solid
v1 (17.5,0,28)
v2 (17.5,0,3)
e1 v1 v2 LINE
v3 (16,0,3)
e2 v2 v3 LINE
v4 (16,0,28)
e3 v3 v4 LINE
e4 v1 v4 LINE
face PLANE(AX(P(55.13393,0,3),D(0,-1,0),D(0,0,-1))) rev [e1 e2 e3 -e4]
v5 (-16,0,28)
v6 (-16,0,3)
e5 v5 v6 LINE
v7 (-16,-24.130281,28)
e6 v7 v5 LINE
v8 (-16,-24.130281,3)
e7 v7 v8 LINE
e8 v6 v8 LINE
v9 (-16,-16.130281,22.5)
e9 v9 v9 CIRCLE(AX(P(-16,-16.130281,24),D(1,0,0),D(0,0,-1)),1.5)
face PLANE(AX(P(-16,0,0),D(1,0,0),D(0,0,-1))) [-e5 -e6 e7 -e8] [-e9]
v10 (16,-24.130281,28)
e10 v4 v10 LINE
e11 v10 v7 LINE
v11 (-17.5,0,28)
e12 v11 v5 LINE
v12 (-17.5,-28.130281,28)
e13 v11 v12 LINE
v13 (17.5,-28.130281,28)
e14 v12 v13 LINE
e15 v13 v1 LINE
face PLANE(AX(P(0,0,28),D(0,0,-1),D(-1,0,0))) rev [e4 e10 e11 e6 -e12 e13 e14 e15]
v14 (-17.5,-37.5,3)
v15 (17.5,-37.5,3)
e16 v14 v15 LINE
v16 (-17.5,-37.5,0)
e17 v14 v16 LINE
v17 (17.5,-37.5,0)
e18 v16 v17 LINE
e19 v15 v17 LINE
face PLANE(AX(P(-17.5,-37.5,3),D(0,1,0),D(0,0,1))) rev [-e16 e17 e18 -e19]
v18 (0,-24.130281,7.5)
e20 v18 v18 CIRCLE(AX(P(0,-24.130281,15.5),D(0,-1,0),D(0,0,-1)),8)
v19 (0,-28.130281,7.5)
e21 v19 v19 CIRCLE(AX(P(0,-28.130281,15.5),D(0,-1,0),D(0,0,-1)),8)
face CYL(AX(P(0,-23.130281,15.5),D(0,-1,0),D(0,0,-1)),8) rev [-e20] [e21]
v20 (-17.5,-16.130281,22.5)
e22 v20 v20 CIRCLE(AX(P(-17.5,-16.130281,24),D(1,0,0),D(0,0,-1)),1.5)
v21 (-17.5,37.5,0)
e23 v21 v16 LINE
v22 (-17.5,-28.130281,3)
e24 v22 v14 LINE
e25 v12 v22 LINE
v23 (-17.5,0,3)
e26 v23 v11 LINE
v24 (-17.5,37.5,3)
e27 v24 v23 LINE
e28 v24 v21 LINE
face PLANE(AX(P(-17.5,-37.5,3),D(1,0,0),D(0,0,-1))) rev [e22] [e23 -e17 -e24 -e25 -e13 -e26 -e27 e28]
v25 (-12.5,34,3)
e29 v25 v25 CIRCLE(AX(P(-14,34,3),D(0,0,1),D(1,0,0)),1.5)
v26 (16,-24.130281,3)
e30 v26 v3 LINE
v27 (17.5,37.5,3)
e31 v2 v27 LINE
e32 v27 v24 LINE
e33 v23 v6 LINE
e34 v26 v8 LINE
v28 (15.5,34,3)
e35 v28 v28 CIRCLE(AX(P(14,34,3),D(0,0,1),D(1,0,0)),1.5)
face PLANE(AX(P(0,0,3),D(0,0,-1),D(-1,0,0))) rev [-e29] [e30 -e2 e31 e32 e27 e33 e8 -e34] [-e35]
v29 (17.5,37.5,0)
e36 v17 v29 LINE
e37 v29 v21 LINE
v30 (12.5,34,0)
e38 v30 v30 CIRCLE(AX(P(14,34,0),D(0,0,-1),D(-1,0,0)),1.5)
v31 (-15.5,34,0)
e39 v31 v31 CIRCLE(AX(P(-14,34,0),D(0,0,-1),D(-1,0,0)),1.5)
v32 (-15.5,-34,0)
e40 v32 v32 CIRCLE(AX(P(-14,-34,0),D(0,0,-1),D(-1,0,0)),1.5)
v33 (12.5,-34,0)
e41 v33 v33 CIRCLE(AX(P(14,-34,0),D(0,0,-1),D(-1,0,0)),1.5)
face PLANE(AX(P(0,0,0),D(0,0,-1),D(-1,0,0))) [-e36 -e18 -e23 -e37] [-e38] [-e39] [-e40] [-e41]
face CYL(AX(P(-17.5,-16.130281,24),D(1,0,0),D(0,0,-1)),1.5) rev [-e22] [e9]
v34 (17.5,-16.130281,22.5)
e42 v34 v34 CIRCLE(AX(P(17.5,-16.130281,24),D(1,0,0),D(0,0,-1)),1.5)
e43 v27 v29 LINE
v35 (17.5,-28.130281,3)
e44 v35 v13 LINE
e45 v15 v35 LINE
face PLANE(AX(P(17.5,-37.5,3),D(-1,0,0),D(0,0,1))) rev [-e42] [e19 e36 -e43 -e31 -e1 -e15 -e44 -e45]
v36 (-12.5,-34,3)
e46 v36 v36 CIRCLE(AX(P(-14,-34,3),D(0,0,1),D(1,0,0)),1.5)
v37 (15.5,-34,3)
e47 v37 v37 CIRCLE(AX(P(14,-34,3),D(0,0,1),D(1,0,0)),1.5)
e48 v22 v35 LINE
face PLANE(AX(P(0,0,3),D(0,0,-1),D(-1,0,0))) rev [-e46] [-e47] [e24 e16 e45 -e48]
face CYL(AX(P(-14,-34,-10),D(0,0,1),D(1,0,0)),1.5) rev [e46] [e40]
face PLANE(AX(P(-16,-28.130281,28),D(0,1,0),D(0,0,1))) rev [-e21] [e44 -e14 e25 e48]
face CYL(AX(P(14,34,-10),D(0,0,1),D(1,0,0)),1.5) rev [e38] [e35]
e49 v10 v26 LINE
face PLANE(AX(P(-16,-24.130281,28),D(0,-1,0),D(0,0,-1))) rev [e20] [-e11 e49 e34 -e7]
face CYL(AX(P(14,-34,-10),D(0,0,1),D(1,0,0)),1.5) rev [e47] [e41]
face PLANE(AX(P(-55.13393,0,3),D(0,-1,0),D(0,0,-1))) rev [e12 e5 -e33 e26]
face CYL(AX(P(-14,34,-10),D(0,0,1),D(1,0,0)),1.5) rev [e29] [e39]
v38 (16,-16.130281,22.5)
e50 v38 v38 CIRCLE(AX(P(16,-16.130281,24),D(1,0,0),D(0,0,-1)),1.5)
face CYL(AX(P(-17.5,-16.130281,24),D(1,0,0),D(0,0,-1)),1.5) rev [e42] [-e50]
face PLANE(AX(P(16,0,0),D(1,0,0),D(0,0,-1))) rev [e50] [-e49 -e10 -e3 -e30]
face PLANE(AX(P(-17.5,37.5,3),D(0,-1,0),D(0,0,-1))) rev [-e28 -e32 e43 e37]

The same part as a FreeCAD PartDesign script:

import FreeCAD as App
import Part
import Sketcher

V = App.Vector

doc = App.newDocument("Part")
body = doc.addObject("PartDesign::Body", "Body")

sketch1 = body.newObject("Sketcher::SketchObject", "Sketch")
sketch1.AttachmentSupport = (doc.getObject("XY_Plane"), [""])
sketch1.MapMode = "FlatFace"
sketch1.addGeometry(Part.LineSegment(V(-18, 38, 0), V(-18, -38, 0)), False)
sketch1.addGeometry(Part.LineSegment(V(-18, -38, 0), V(18, -38, 0)), False)
sketch1.addGeometry(Part.LineSegment(V(18, -38, 0), V(18, 38, 0)), False)
sketch1.addGeometry(Part.LineSegment(V(18, 38, 0), V(-18, 38, 0)), False)
sketch1.addConstraint(Sketcher.Constraint("Coincident", 0, 2, 1, 1))
sketch1.addConstraint(Sketcher.Constraint("Coincident", 1, 2, 2, 1))
sketch1.addConstraint(Sketcher.Constraint("Coincident", 2, 2, 3, 1))
sketch1.addConstraint(Sketcher.Constraint("Coincident", 3, 2, 0, 1))
sketch1.addConstraint(Sketcher.Constraint("Vertical", 0))
sketch1.addConstraint(Sketcher.Constraint("Horizontal", 1))
sketch1.addConstraint(Sketcher.Constraint("Vertical", 2))
sketch1.addConstraint(Sketcher.Constraint("Horizontal", 3))
sketch1.addConstraint(Sketcher.Constraint("Symmetric", 0, 2, 2, 2, -1, 1))
sketch1.addConstraint(Sketcher.Constraint("DistanceX", 1, 1, 1, 2, 35.0))
sketch1.addConstraint(Sketcher.Constraint("DistanceY", 0, 2, 0, 1, 75.0))
pad1 = body.newObject("PartDesign::Pad", "Pad")
pad1.Profile = sketch1
pad1.Length = 3

sketch2 = body.newObject("Sketcher::SketchObject", "Sketch001")
sketch2.AttachmentSupport = (doc.getObject("XY_Plane"), [""])
sketch2.MapMode = "FlatFace"
sketch2.AttachmentOffset = App.Placement(V(0, 0, 3), App.Rotation())
sketch2.addGeometry(Part.Circle(V(14, 34, 0), V(0, 0, 1), 1.5), False)
sketch2.addGeometry(Part.Circle(V(-14, 34, 0), V(0, 0, 1), 1.5), False)
sketch2.addGeometry(Part.Circle(V(14, -34, 0), V(0, 0, 1), 1.5), False)
sketch2.addGeometry(Part.Circle(V(-14, -34, 0), V(0, 0, 1), 1.5), False)
sketch2.addConstraint(Sketcher.Constraint("Equal", 0, 1))
sketch2.addConstraint(Sketcher.Constraint("Equal", 1, 2))
sketch2.addConstraint(Sketcher.Constraint("Equal", 2, 3))
sketch2.addConstraint(Sketcher.Constraint("Symmetric", 1, 3, 2, 3, -1, 1))
sketch2.addConstraint(Sketcher.Constraint("Symmetric", 0, 3, 3, 3, -1, 1))
sketch2.addConstraint(Sketcher.Constraint("Symmetric", 0, 3, 1, 3, -2))
sketch2.addConstraint(Sketcher.Constraint("Diameter", 0, 3.0))
sketch2.addConstraint(Sketcher.Constraint("DistanceX", -1, 1, 0, 3, 14.0))
sketch2.addConstraint(Sketcher.Constraint("DistanceY", -1, 1, 0, 3, 34.0))
pocket1 = body.newObject("PartDesign::Pocket", "Pocket")
pocket1.Profile = sketch2
pocket1.Length = 13

sketch3 = body.newObject("Sketcher::SketchObject", "Sketch002")
sketch3.AttachmentSupport = (doc.getObject("XY_Plane"), [""])
sketch3.MapMode = "FlatFace"
sketch3.AttachmentOffset = App.Placement(V(0, 0, 3), App.Rotation())
sketch3.addGeometry(Part.LineSegment(V(-16, -24.1, 0), V(-16, -28.1, 0)), False)
sketch3.addGeometry(Part.LineSegment(V(-16, -28.1, 0), V(16, -28.1, 0)), False)
sketch3.addGeometry(Part.LineSegment(V(16, -28.1, 0), V(16, -24.1, 0)), False)
sketch3.addGeometry(Part.LineSegment(V(16, -24.1, 0), V(-16, -24.1, 0)), False)
sketch3.addConstraint(Sketcher.Constraint("Coincident", 0, 2, 1, 1))
sketch3.addConstraint(Sketcher.Constraint("Coincident", 1, 2, 2, 1))
sketch3.addConstraint(Sketcher.Constraint("Coincident", 2, 2, 3, 1))
sketch3.addConstraint(Sketcher.Constraint("Coincident", 3, 2, 0, 1))
sketch3.addConstraint(Sketcher.Constraint("Vertical", 0))
sketch3.addConstraint(Sketcher.Constraint("Horizontal", 1))
sketch3.addConstraint(Sketcher.Constraint("Vertical", 2))
sketch3.addConstraint(Sketcher.Constraint("Horizontal", 3))
sketch3.addConstraint(Sketcher.Constraint("DistanceX", 1, 1, 1, 2, 32.0))
sketch3.addConstraint(Sketcher.Constraint("DistanceY", 0, 2, 0, 1, 4.0))
sketch3.addConstraint(Sketcher.Constraint("DistanceX", 0, 2, -1, 1, 16.0))
sketch3.addConstraint(Sketcher.Constraint("DistanceY", 0, 2, -1, 1, 28.130281))
pad2 = body.newObject("PartDesign::Pad", "Pad001")
pad2.Profile = sketch3
pad2.Length = 25

sketch4 = body.newObject("Sketcher::SketchObject", "Sketch003")
sketch4.AttachmentSupport = (doc.getObject("XZ_Plane"), [""])
sketch4.MapMode = "FlatFace"
sketch4.AttachmentOffset = App.Placement(V(0, 0, 28.130281), App.Rotation())
sketch4.addGeometry(Part.Circle(V(0, 16, 0), V(0, 0, 1), 8), False)
sketch4.addConstraint(Sketcher.Constraint("PointOnObject", 0, 3, -2))
sketch4.addConstraint(Sketcher.Constraint("Diameter", 0, 16.0))
sketch4.addConstraint(Sketcher.Constraint("DistanceY", -1, 1, 0, 3, 15.5))
pocket2 = body.newObject("PartDesign::Pocket", "Pocket001")
pocket2.Profile = sketch4
pocket2.Length = 5

sketch5 = body.newObject("Sketcher::SketchObject", "Sketch004")
sketch5.AttachmentSupport = (doc.getObject("YZ_Plane"), [""])
sketch5.MapMode = "FlatFace"
sketch5.AttachmentOffset = App.Placement(V(0, 0, -16), App.Rotation())
sketch5.addGeometry(Part.LineSegment(V(0, 3, 0), V(-28, 3, 0)), False)
sketch5.addGeometry(Part.LineSegment(V(-28, 3, 0), V(-28, 28, 0)), False)
sketch5.addGeometry(Part.LineSegment(V(-28, 28, 0), V(0, 28, 0)), False)
sketch5.addGeometry(Part.LineSegment(V(0, 28, 0), V(0, 3, 0)), False)
sketch5.addConstraint(Sketcher.Constraint("Coincident", 0, 2, 1, 1))
sketch5.addConstraint(Sketcher.Constraint("Coincident", 1, 2, 2, 1))
sketch5.addConstraint(Sketcher.Constraint("Coincident", 2, 2, 3, 1))
sketch5.addConstraint(Sketcher.Constraint("Coincident", 3, 2, 0, 1))
sketch5.addConstraint(Sketcher.Constraint("Horizontal", 0))
sketch5.addConstraint(Sketcher.Constraint("Vertical", 1))
sketch5.addConstraint(Sketcher.Constraint("Horizontal", 2))
sketch5.addConstraint(Sketcher.Constraint("Vertical", 3))
sketch5.addConstraint(Sketcher.Constraint("PointOnObject", 2, 2, -2))
sketch5.addConstraint(Sketcher.Constraint("DistanceY", 1, 1, 1, 2, 25.0))
sketch5.addConstraint(Sketcher.Constraint("DistanceY", -1, 1, 0, 2, 3.0))
sketch5.addConstraint(Sketcher.Constraint("DistanceX", 0, 2, 0, 1, 28.130281))
pad3 = body.newObject("PartDesign::Pad", "Pad002")
pad3.Profile = sketch5
pad3.Length = 1.5
pad3.Reversed = True

sketch6 = body.newObject("Sketcher::SketchObject", "Sketch005")
sketch6.AttachmentSupport = (doc.getObject("YZ_Plane"), [""])
sketch6.MapMode = "FlatFace"
sketch6.AttachmentOffset = App.Placement(V(0, 0, 16), App.Rotation())
sketch6.addGeometry(Part.LineSegment(V(0, 28, 0), V(-28, 28, 0)), False)
sketch6.addGeometry(Part.LineSegment(V(-28, 28, 0), V(-28, 3, 0)), False)
sketch6.addGeometry(Part.LineSegment(V(-28, 3, 0), V(0, 3, 0)), False)
sketch6.addGeometry(Part.LineSegment(V(0, 3, 0), V(0, 28, 0)), False)
sketch6.addConstraint(Sketcher.Constraint("Coincident", 0, 2, 1, 1))
sketch6.addConstraint(Sketcher.Constraint("Coincident", 1, 2, 2, 1))
sketch6.addConstraint(Sketcher.Constraint("Coincident", 2, 2, 3, 1))
sketch6.addConstraint(Sketcher.Constraint("Coincident", 3, 2, 0, 1))
sketch6.addConstraint(Sketcher.Constraint("Horizontal", 0))
sketch6.addConstraint(Sketcher.Constraint("Vertical", 1))
sketch6.addConstraint(Sketcher.Constraint("Horizontal", 2))
sketch6.addConstraint(Sketcher.Constraint("Vertical", 3))
sketch6.addConstraint(Sketcher.Constraint("PointOnObject", 2, 2, -2))
sketch6.addConstraint(Sketcher.Constraint("DistanceY", 1, 2, 1, 1, 25.0))
sketch6.addConstraint(Sketcher.Constraint("DistanceY", -1, 1, 0, 2, 28.0))
sketch6.addConstraint(Sketcher.Constraint("DistanceX", 0, 2, 0, 1, 28.130281))
pad4 = body.newObject("PartDesign::Pad", "Pad003")
pad4.Profile = sketch6
pad4.Length = 1.5

sketch7 = body.newObject("Sketcher::SketchObject", "Sketch006")
sketch7.AttachmentSupport = (doc.getObject("YZ_Plane"), [""])
sketch7.MapMode = "FlatFace"
sketch7.AttachmentOffset = App.Placement(V(0, 0, 17.5), App.Rotation())
sketch7.addGeometry(Part.Circle(V(-16.1, 24, 0), V(0, 0, 1), 1.5), False)
sketch7.addConstraint(Sketcher.Constraint("Diameter", 0, 3.0))
sketch7.addConstraint(Sketcher.Constraint("DistanceY", -1, 1, 0, 3, 24.0))
sketch7.addConstraint(Sketcher.Constraint("DistanceX", 0, 3, -1, 1, 16.130281))
pocket3 = body.newObject("PartDesign::Pocket", "Pocket002")
pocket3.Profile = sketch7
pocket3.Type = "ThroughAll"

doc.recompute()
